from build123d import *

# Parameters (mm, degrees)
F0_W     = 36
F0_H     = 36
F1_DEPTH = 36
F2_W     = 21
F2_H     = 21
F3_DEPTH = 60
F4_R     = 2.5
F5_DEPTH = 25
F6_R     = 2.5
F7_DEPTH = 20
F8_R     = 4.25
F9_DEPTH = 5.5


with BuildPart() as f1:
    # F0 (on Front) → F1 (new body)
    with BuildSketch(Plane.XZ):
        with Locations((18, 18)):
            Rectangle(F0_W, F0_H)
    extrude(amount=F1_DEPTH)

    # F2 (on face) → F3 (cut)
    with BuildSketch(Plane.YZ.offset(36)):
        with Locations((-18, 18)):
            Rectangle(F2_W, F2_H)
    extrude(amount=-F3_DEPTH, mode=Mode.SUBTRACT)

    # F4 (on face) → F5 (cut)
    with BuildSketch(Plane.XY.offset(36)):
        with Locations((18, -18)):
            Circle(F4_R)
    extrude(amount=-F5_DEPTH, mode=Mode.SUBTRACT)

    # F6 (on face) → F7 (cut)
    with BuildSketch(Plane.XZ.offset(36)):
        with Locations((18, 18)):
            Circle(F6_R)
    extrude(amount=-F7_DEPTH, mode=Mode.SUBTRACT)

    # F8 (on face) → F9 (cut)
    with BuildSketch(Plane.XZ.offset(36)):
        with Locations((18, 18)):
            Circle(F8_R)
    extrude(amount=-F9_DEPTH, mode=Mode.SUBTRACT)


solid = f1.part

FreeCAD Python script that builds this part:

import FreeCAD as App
import Part
import Sketcher

V = App.Vector
Q = App.Units.Quantity

doc = App.newDocument("Part")
params = doc.addObject("Spreadsheet::Sheet", "Params")
for row, (alias, value) in enumerate([
    ("sketch1_width", "36 mm"),
    ("pad1_length", "36 mm"),
    ("sketch2_width", "21 mm"),
    ("pocket1_length", "60 mm"),
    ("sketch3_diameter", "5 mm"),
    ("pocket2_length", "25 mm"),
    ("sketch4_diameter", "5 mm"),
    ("pocket3_length", "20 mm"),
    ("sketch5_diameter", "8.5 mm"),
    ("pocket4_length", "5.5 mm"),
], start=1):
    params.set(f"A{row}", alias)
    params.set(f"B{row}", "=" + value)
    params.setAlias(f"B{row}", alias)

body = doc.addObject("PartDesign::Body", "Body")

sketch1 = doc.addObject("Sketcher::SketchObject", "Sketch")
body.addObject(sketch1)
sketch1.AttachmentSupport = (doc.XZ_Plane, [""])
sketch1.MapMode = "FlatFace"
sketch1.addGeometry(Part.LineSegment(V(0, 36, 0), V(0, 0, 0)), False)
sketch1.addGeometry(Part.LineSegment(V(0, 0, 0), V(36, 0, 0)), False)
sketch1.addGeometry(Part.LineSegment(V(36, 0, 0), V(36, 36, 0)), False)
sketch1.addGeometry(Part.LineSegment(V(36, 36, 0), V(0, 36, 0)), False)
sketch1.addConstraint(Sketcher.Constraint("Coincident", 0, 2, 1, 1))
sketch1.addConstraint(Sketcher.Constraint("Coincident", 1, 2, 2, 1))
sketch1.addConstraint(Sketcher.Constraint("Coincident", 2, 2, 3, 1))
sketch1.addConstraint(Sketcher.Constraint("Coincident", 3, 2, 0, 1))
sketch1.addConstraint(Sketcher.Constraint("Vertical", 0))
sketch1.addConstraint(Sketcher.Constraint("Horizontal", 1))
sketch1.addConstraint(Sketcher.Constraint("Vertical", 2))
sketch1.addConstraint(Sketcher.Constraint("Horizontal", 3))
sketch1.addConstraint(Sketcher.Constraint("Coincident", 0, 2, -1, 1))
sketch1.addConstraint(Sketcher.Constraint("Equal", 3, 0))
sketch1.addConstraint(Sketcher.Constraint("DistanceX", 1, 1, 1, 2, Q("36 mm")))
sketch1.setExpression("Constraints[10]", "Params.sketch1_width")
pad1 = doc.addObject("PartDesign::Pad", "Pad")
body.addObject(pad1)
pad1.Profile = sketch1
pad1.setExpression("Length", "Params.pad1_length")

sketch2 = doc.addObject("Sketcher::SketchObject", "Sketch001")
body.addObject(sketch2)
sketch2.AttachmentSupport = (doc.YZ_Plane, [""])
sketch2.MapMode = "FlatFace"
sketch2.AttachmentOffset = App.Placement(V(0, 0, 36), App.Rotation())
sketch2.addGeometry(Part.LineSegment(V(-28, 28, 0), V(-28, 8, 0)), False)
sketch2.addGeometry(Part.LineSegment(V(-28, 8, 0), V(-8, 8, 0)), False)
sketch2.addGeometry(Part.LineSegment(V(-8, 8, 0), V(-8, 28, 0)), False)
sketch2.addGeometry(Part.LineSegment(V(-8, 28, 0), V(-28, 28, 0)), False)
sketch2.addConstraint(Sketcher.Constraint("Coincident", 0, 2, 1, 1))
sketch2.addConstraint(Sketcher.Constraint("Coincident", 1, 2, 2, 1))
sketch2.addConstraint(Sketcher.Constraint("Coincident", 2, 2, 3, 1))
sketch2.addConstraint(Sketcher.Constraint("Coincident", 3, 2, 0, 1))
sketch2.addConstraint(Sketcher.Constraint("Vertical", 0))
sketch2.addConstraint(Sketcher.Constraint("Horizontal", 1))
sketch2.addConstraint(Sketcher.Constraint("Vertical", 2))
sketch2.addConstraint(Sketcher.Constraint("Horizontal", 3))
sketch2.addConstraint(Sketcher.Constraint("Equal", 3, 0))
sketch2.addConstraint(Sketcher.Constraint("DistanceX", 1, 1, 1, 2, Q("21 mm")))
sketch2.addConstraint(Sketcher.Constraint("DistanceX", 0, 2, -1, 1, Q("28.5 mm")))
sketch2.addConstraint(Sketcher.Constraint("DistanceY", -1, 1, 0, 2, Q("7.5 mm")))
sketch2.setExpression("Constraints[9]", "Params.sketch2_width")
pocket1 = doc.addObject("PartDesign::Pocket", "Pocket")
body.addObject(pocket1)
pocket1.Profile = sketch2
pocket1.setExpression("Length", "Params.pocket1_length")

sketch3 = doc.addObject("Sketcher::SketchObject", "Sketch002")
body.addObject(sketch3)
sketch3.AttachmentSupport = (doc.XY_Plane, [""])
sketch3.MapMode = "FlatFace"
sketch3.AttachmentOffset = App.Placement(V(0, 0, 36), App.Rotation())
sketch3.addGeometry(Part.Circle(V(18, -18, 0), V(0, 0, 1), 2.5), False)
sketch3.addConstraint(Sketcher.Constraint("Diameter", 0, Q("5 mm")))
sketch3.addConstraint(Sketcher.Constraint("DistanceX", -1, 1, 0, 3, Q("18 mm")))
sketch3.addConstraint(Sketcher.Constraint("DistanceY", 0, 3, -1, 1, Q("18 mm")))
sketch3.setExpression("Constraints[0]", "Params.sketch3_diameter")
pocket2 = doc.addObject("PartDesign::Pocket", "Pocket001")
body.addObject(pocket2)
pocket2.Profile = sketch3
pocket2.setExpression("Length", "Params.pocket2_length")

sketch4 = doc.addObject("Sketcher::SketchObject", "Sketch003")
body.addObject(sketch4)
sketch4.AttachmentSupport = (doc.XZ_Plane, [""])
sketch4.MapMode = "FlatFace"
sketch4.AttachmentOffset = App.Placement(V(0, 0, 36), App.Rotation())
sketch4.addGeometry(Part.Circle(V(18, 18, 0), V(0, 0, 1), 2.5), False)
sketch4.addConstraint(Sketcher.Constraint("Diameter", 0, Q("5 mm")))
sketch4.addConstraint(Sketcher.Constraint("DistanceX", -1, 1, 0, 3, Q("18 mm")))
sketch4.addConstraint(Sketcher.Constraint("DistanceY", -1, 1, 0, 3, Q("18 mm")))
sketch4.setExpression("Constraints[0]", "Params.sketch4_diameter")
pocket3 = doc.addObject("PartDesign::Pocket", "Pocket002")
body.addObject(pocket3)
pocket3.Profile = sketch4
pocket3.setExpression("Length", "Params.pocket3_length")

sketch5 = doc.addObject("Sketcher::SketchObject", "Sketch004")
body.addObject(sketch5)
sketch5.AttachmentSupport = (doc.XZ_Plane, [""])
sketch5.MapMode = "FlatFace"
sketch5.AttachmentOffset = App.Placement(V(0, 0, 36), App.Rotation())
sketch5.addGeometry(Part.Circle(V(18, 18, 0), V(0, 0, 1), 4.2), False)
sketch5.addConstraint(Sketcher.Constraint("Diameter", 0, Q("8.5 mm")))
sketch5.addConstraint(Sketcher.Constraint("DistanceX", -1, 1, 0, 3, Q("18 mm")))
sketch5.addConstraint(Sketcher.Constraint("DistanceY", -1, 1, 0, 3, Q("18 mm")))
sketch5.setExpression("Constraints[0]", "Params.sketch5_diameter")
pocket4 = doc.addObject("PartDesign::Pocket", "Pocket003")
body.addObject(pocket4)
pocket4.Profile = sketch5
pocket4.setExpression("Length", "Params.pocket4_length")

doc.recompute()
